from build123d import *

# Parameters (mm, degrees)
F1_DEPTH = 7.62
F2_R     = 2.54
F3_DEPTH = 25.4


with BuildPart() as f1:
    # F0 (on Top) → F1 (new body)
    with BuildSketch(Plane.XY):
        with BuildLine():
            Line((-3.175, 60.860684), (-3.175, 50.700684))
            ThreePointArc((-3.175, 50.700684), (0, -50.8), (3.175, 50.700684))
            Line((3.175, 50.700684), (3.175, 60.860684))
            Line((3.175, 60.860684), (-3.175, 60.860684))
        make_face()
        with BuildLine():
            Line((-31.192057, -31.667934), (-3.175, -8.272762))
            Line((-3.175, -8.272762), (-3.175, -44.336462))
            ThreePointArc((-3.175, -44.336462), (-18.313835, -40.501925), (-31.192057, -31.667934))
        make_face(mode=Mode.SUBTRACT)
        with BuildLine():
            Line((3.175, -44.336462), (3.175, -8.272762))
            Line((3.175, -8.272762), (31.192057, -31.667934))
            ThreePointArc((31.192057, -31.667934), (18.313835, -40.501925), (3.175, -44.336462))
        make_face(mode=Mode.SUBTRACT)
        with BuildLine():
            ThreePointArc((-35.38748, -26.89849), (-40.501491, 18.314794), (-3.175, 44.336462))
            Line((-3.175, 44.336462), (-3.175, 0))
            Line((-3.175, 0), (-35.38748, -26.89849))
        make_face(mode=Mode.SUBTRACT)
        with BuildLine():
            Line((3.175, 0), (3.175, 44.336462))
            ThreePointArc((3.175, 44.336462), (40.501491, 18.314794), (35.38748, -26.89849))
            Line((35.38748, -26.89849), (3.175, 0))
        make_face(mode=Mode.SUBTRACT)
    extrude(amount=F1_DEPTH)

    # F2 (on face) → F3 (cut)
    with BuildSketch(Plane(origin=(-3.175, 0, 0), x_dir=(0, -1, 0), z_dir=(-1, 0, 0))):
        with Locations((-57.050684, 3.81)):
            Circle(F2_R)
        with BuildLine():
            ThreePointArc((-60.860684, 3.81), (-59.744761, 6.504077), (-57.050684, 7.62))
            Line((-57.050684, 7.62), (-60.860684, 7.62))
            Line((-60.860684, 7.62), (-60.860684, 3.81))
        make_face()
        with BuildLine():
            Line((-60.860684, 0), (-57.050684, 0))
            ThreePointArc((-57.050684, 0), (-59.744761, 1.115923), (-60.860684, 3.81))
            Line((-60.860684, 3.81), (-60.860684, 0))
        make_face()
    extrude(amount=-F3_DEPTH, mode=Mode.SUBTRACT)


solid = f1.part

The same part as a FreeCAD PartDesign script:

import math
import FreeCAD as App
import Part
import Sketcher
from FreeCAD import Vector
Q = App.Units.Quantity

doc = App.newDocument("Part")
params = doc.addObject("Spreadsheet::Sheet", "Params")
for row, (alias, value) in enumerate([
    ("sketch1_radius", "2 in"),
    ("sketch1_radius2", "1.75 in"),
    ("sketch1_height", "0.4 in"),
    ("sketch1_width", "0.25 in"),
    ("pad1_length", "0.3 in"),
    ("sketch2_diameter", "0.2 in"),
    ("sketch2_radius", "0.15 in"),
    ("pocket1_length", "1 in"),
], start=1):
    params.set(f"A{row}", alias)
    params.set(f"B{row}", "=" + value)
    params.setAlias(f"B{row}", alias)

body = doc.addObject("PartDesign::Body", "Body")

# Sketch on XY plane
sketch1 = doc.addObject("Sketcher::SketchObject", "Sketch")
body.addObject(sketch1)
sketch1.AttachmentSupport = (doc.XY_Plane, [""])
sketch1.MapMode = "FlatFace"
sketch1.addGeometry([
    Part.LineSegment(Vector(-3.175, 60.860684, 0), Vector(-3.175, 50.700684, 0)),  # 0
    Part.ArcOfCircle(Part.Circle(Vector(0, 0, 0), Vector(0, 0, 1), 50.8), math.radians(93.583322), math.radians(446.416678)),  # 1
    Part.LineSegment(Vector(3.175, 50.700684, 0), Vector(3.175, 60.860684, 0)),  # 2
    Part.LineSegment(Vector(3.175, 60.860684, 0), Vector(-3.175, 60.860684, 0)),  # 3
    Part.ArcOfCircle(Part.Circle(Vector(0, -0.000001, 0), Vector(0, 0, 1), 44.449999), math.radians(-134.566256), math.radians(-94.096044)),  # 4
    Part.LineSegment(Vector(-31.192057, -31.667934, 0), Vector(-3.175, -8.272762, 0)),  # 5
    Part.LineSegment(Vector(-3.175, -8.272762, 0), Vector(-3.175, -44.336462, 0)),  # 6
    Part.ArcOfCircle(Part.Circle(Vector(0, -0.000001, 0), Vector(0, 0, 1), 44.449999), math.radians(-85.903956), math.radians(-45.433744)),  # 7
    Part.LineSegment(Vector(3.175, -44.336462, 0), Vector(3.175, -8.272762, 0)),  # 8
    Part.LineSegment(Vector(3.175, -8.272762, 0), Vector(31.192057, -31.667934, 0)),  # 9
    Part.LineSegment(Vector(-3.175, 0, 0), Vector(-35.38748, -26.89849, 0)),  # 10
    Part.ArcOfCircle(Part.Circle(Vector(0.000001, 0, 0), Vector(0, 0, 1), 44.45), math.radians(94.096045), math.radians(217.238943)),  # 11
    Part.LineSegment(Vector(-3.175, 44.336462, 0), Vector(-3.175, 0, 0)),  # 12
    Part.LineSegment(Vector(35.38748, -26.89849, 0), Vector(3.175, 0, 0)),  # 13
    Part.LineSegment(Vector(3.175, 0, 0), Vector(3.175, 44.336462, 0)),  # 14
    Part.ArcOfCircle(Part.Circle(Vector(-0.000001, 0, 0), Vector(0, 0, 1), 44.45), math.radians(-37.238943), math.radians(85.903955)),  # 15
], False)
sketch1.addConstraint([
    Sketcher.Constraint("Coincident", 0, 2, 1, 1),
    Sketcher.Constraint("Coincident", 1, 2, 2, 1),
    Sketcher.Constraint("Coincident", 2, 2, 3, 1),
    Sketcher.Constraint("Coincident", 3, 2, 0, 1),
    Sketcher.Constraint("Coincident", 4, 1, 5, 1),
    Sketcher.Constraint("Coincident", 5, 2, 6, 1),
    Sketcher.Constraint("Coincident", 6, 2, 4, 2),
    Sketcher.Constraint("Coincident", 7, 1, 8, 1),
    Sketcher.Constraint("Coincident", 8, 2, 9, 1),
    Sketcher.Constraint("Coincident", 9, 2, 7, 2),
    Sketcher.Constraint("Coincident", 10, 2, 11, 2),
    Sketcher.Constraint("Coincident", 11, 1, 12, 1),
    Sketcher.Constraint("Coincident", 12, 2, 10, 1),
    Sketcher.Constraint("Coincident", 13, 2, 14, 1),
    Sketcher.Constraint("Coincident", 14, 2, 15, 2),
    Sketcher.Constraint("Coincident", 15, 1, 13, 1),
    Sketcher.Constraint("Vertical", 0),
    Sketcher.Constraint("Vertical", 2),
    Sketcher.Constraint("Horizontal", 3),
    Sketcher.Constraint("Vertical", 6),
    Sketcher.Constraint("Vertical", 8),
    Sketcher.Constraint("Vertical", 12),
    Sketcher.Constraint("Vertical", 14),
    Sketcher.Constraint("Coincident", 1, 3, -1, 1),
    Sketcher.Constraint("Coincident", 4, 3, -1, 1),
    Sketcher.Constraint("Coincident", 7, 3, -1, 1),
    Sketcher.Constraint("Coincident", 11, 3, -1, 1),
    Sketcher.Constraint("Coincident", 15, 3, -1, 1),
    Sketcher.Constraint("Equal", 4, 7),
    Sketcher.Constraint("Equal", 7, 11),
    Sketcher.Constraint("Equal", 11, 15),
    Sketcher.Constraint("Symmetric", 12, 2, 13, 2, -1, 1),
    Sketcher.Constraint("Symmetric", 5, 2, 8, 2, -2),
    Sketcher.Constraint("PointOnObject", 12, 2, -1),
    Sketcher.Constraint("Parallel", 5, 10),
    Sketcher.Constraint("Parallel", 9, 13),
    Sketcher.Constraint("Horizontal", 0, 2, 1, 2),
    Sketcher.Constraint("Horizontal", 4, 1, 9, 2),
    Sketcher.Constraint("Vertical", 3, 2, 5, 2),
    Sketcher.Constraint("Vertical", 6, 2, 11, 1),
    Sketcher.Constraint("Radius", 1, Q("2 in")),
    Sketcher.Constraint("Radius", 4, Q("1.75 in")),
    Sketcher.Constraint("DistanceY", 0, 2, 0, 1, Q("0.4 in")),
    Sketcher.Constraint("DistanceX", 3, 2, 3, 1, Q("0.25 in")),
    Sketcher.Constraint("DistanceY", 6, 2, 6, 1, 36.0637),
    Sketcher.Constraint("Distance", 5, 36.500542),
])
sketch1.setExpression("Constraints[40]", "Params.sketch1_radius")
sketch1.setExpression("Constraints[41]", "Params.sketch1_radius2")
sketch1.setExpression("Constraints[42]", "Params.sketch1_height")
sketch1.setExpression("Constraints[43]", "Params.sketch1_width")
pad1 = doc.addObject("PartDesign::Pad", "Pad")
body.addObject(pad1)
pad1.Profile = sketch1
pad1.setExpression("Length", "Params.pad1_length")

# Sketch on YZ plane
sketch2 = doc.addObject("Sketcher::SketchObject", "Sketch001")
body.addObject(sketch2)
sketch2.AttachmentSupport = (doc.YZ_Plane, [""])
sketch2.MapMode = "FlatFace"
sketch2.AttachmentOffset = App.Placement(Vector(0, 0, -0.125 * 25.4), App.Rotation())
sketch2.addGeometry([
    Part.Circle(Vector(57.050684, 3.81, 0), Vector(0, 0, 1), 2.54),  # 0
    Part.ArcOfCircle(Part.Circle(Vector(57.050685, 3.810001, 0), Vector(0, 0, 1), 3.809999), math.radians(-0.000008), math.radians(90.000008)),  # 1
    Part.LineSegment(Vector(57.050684, 7.62, 0), Vector(60.860684, 7.62, 0)),  # 2
    Part.LineSegment(Vector(60.860684, 7.62, 0), Vector(60.860684, 3.81, 0)),  # 3
    Part.LineSegment(Vector(60.860684, 0, 0), Vector(57.050684, 0, 0)),  # 4
    Part.ArcOfCircle(Part.Circle(Vector(57.050685, 3.809999, 0), Vector(0, 0, 1), 3.809999), math.radians(-90.000008), math.radians(0.000008)),  # 5
    Part.LineSegment(Vector(60.860684, 3.81, 0), Vector(60.860684, 0, 0)),  # 6
], False)
sketch2.addConstraint([
    Sketcher.Constraint("Tangent", 1, 2, 2, 1),
    Sketcher.Constraint("Coincident", 2, 2, 3, 1),
    Sketcher.Constraint("Tangent", 3, 2, 1, 1),
    Sketcher.Constraint("Tangent", 4, 2, 5, 1),
    Sketcher.Constraint("Tangent", 5, 2, 6, 1),
    Sketcher.Constraint("Coincident", 6, 2, 4, 1),
    Sketcher.Constraint("Horizontal", 2),
    Sketcher.Constraint("Vertical", 3),
    Sketcher.Constraint("Horizontal", 4),
    Sketcher.Constraint("Vertical", 6),
    Sketcher.Constraint("Coincident", 1, 3, 0, 3),
    Sketcher.Constraint("Coincident", 5, 3, 0, 3),
    Sketcher.Constraint("Equal", 1, 5),
    Sketcher.Constraint("PointOnObject", 4, 2, -1),
    Sketcher.Constraint("Diameter", 0, Q("0.2 in")),
    Sketcher.Constraint("Radius", 1, Q("0.15 in")),
    Sketcher.Constraint("DistanceX", -1, 1, 0, 3, 57.050684),
])
sketch2.setExpression("Constraints[14]", "Params.sketch2_diameter")
sketch2.setExpression("Constraints[15]", "Params.sketch2_radius")
pocket1 = doc.addObject("PartDesign::Pocket", "Pocket")
body.addObject(pocket1)
pocket1.Profile = sketch2
pocket1.setExpression("Length", "Params.pocket1_length")
pocket1.Reversed = True

doc.recompute()
